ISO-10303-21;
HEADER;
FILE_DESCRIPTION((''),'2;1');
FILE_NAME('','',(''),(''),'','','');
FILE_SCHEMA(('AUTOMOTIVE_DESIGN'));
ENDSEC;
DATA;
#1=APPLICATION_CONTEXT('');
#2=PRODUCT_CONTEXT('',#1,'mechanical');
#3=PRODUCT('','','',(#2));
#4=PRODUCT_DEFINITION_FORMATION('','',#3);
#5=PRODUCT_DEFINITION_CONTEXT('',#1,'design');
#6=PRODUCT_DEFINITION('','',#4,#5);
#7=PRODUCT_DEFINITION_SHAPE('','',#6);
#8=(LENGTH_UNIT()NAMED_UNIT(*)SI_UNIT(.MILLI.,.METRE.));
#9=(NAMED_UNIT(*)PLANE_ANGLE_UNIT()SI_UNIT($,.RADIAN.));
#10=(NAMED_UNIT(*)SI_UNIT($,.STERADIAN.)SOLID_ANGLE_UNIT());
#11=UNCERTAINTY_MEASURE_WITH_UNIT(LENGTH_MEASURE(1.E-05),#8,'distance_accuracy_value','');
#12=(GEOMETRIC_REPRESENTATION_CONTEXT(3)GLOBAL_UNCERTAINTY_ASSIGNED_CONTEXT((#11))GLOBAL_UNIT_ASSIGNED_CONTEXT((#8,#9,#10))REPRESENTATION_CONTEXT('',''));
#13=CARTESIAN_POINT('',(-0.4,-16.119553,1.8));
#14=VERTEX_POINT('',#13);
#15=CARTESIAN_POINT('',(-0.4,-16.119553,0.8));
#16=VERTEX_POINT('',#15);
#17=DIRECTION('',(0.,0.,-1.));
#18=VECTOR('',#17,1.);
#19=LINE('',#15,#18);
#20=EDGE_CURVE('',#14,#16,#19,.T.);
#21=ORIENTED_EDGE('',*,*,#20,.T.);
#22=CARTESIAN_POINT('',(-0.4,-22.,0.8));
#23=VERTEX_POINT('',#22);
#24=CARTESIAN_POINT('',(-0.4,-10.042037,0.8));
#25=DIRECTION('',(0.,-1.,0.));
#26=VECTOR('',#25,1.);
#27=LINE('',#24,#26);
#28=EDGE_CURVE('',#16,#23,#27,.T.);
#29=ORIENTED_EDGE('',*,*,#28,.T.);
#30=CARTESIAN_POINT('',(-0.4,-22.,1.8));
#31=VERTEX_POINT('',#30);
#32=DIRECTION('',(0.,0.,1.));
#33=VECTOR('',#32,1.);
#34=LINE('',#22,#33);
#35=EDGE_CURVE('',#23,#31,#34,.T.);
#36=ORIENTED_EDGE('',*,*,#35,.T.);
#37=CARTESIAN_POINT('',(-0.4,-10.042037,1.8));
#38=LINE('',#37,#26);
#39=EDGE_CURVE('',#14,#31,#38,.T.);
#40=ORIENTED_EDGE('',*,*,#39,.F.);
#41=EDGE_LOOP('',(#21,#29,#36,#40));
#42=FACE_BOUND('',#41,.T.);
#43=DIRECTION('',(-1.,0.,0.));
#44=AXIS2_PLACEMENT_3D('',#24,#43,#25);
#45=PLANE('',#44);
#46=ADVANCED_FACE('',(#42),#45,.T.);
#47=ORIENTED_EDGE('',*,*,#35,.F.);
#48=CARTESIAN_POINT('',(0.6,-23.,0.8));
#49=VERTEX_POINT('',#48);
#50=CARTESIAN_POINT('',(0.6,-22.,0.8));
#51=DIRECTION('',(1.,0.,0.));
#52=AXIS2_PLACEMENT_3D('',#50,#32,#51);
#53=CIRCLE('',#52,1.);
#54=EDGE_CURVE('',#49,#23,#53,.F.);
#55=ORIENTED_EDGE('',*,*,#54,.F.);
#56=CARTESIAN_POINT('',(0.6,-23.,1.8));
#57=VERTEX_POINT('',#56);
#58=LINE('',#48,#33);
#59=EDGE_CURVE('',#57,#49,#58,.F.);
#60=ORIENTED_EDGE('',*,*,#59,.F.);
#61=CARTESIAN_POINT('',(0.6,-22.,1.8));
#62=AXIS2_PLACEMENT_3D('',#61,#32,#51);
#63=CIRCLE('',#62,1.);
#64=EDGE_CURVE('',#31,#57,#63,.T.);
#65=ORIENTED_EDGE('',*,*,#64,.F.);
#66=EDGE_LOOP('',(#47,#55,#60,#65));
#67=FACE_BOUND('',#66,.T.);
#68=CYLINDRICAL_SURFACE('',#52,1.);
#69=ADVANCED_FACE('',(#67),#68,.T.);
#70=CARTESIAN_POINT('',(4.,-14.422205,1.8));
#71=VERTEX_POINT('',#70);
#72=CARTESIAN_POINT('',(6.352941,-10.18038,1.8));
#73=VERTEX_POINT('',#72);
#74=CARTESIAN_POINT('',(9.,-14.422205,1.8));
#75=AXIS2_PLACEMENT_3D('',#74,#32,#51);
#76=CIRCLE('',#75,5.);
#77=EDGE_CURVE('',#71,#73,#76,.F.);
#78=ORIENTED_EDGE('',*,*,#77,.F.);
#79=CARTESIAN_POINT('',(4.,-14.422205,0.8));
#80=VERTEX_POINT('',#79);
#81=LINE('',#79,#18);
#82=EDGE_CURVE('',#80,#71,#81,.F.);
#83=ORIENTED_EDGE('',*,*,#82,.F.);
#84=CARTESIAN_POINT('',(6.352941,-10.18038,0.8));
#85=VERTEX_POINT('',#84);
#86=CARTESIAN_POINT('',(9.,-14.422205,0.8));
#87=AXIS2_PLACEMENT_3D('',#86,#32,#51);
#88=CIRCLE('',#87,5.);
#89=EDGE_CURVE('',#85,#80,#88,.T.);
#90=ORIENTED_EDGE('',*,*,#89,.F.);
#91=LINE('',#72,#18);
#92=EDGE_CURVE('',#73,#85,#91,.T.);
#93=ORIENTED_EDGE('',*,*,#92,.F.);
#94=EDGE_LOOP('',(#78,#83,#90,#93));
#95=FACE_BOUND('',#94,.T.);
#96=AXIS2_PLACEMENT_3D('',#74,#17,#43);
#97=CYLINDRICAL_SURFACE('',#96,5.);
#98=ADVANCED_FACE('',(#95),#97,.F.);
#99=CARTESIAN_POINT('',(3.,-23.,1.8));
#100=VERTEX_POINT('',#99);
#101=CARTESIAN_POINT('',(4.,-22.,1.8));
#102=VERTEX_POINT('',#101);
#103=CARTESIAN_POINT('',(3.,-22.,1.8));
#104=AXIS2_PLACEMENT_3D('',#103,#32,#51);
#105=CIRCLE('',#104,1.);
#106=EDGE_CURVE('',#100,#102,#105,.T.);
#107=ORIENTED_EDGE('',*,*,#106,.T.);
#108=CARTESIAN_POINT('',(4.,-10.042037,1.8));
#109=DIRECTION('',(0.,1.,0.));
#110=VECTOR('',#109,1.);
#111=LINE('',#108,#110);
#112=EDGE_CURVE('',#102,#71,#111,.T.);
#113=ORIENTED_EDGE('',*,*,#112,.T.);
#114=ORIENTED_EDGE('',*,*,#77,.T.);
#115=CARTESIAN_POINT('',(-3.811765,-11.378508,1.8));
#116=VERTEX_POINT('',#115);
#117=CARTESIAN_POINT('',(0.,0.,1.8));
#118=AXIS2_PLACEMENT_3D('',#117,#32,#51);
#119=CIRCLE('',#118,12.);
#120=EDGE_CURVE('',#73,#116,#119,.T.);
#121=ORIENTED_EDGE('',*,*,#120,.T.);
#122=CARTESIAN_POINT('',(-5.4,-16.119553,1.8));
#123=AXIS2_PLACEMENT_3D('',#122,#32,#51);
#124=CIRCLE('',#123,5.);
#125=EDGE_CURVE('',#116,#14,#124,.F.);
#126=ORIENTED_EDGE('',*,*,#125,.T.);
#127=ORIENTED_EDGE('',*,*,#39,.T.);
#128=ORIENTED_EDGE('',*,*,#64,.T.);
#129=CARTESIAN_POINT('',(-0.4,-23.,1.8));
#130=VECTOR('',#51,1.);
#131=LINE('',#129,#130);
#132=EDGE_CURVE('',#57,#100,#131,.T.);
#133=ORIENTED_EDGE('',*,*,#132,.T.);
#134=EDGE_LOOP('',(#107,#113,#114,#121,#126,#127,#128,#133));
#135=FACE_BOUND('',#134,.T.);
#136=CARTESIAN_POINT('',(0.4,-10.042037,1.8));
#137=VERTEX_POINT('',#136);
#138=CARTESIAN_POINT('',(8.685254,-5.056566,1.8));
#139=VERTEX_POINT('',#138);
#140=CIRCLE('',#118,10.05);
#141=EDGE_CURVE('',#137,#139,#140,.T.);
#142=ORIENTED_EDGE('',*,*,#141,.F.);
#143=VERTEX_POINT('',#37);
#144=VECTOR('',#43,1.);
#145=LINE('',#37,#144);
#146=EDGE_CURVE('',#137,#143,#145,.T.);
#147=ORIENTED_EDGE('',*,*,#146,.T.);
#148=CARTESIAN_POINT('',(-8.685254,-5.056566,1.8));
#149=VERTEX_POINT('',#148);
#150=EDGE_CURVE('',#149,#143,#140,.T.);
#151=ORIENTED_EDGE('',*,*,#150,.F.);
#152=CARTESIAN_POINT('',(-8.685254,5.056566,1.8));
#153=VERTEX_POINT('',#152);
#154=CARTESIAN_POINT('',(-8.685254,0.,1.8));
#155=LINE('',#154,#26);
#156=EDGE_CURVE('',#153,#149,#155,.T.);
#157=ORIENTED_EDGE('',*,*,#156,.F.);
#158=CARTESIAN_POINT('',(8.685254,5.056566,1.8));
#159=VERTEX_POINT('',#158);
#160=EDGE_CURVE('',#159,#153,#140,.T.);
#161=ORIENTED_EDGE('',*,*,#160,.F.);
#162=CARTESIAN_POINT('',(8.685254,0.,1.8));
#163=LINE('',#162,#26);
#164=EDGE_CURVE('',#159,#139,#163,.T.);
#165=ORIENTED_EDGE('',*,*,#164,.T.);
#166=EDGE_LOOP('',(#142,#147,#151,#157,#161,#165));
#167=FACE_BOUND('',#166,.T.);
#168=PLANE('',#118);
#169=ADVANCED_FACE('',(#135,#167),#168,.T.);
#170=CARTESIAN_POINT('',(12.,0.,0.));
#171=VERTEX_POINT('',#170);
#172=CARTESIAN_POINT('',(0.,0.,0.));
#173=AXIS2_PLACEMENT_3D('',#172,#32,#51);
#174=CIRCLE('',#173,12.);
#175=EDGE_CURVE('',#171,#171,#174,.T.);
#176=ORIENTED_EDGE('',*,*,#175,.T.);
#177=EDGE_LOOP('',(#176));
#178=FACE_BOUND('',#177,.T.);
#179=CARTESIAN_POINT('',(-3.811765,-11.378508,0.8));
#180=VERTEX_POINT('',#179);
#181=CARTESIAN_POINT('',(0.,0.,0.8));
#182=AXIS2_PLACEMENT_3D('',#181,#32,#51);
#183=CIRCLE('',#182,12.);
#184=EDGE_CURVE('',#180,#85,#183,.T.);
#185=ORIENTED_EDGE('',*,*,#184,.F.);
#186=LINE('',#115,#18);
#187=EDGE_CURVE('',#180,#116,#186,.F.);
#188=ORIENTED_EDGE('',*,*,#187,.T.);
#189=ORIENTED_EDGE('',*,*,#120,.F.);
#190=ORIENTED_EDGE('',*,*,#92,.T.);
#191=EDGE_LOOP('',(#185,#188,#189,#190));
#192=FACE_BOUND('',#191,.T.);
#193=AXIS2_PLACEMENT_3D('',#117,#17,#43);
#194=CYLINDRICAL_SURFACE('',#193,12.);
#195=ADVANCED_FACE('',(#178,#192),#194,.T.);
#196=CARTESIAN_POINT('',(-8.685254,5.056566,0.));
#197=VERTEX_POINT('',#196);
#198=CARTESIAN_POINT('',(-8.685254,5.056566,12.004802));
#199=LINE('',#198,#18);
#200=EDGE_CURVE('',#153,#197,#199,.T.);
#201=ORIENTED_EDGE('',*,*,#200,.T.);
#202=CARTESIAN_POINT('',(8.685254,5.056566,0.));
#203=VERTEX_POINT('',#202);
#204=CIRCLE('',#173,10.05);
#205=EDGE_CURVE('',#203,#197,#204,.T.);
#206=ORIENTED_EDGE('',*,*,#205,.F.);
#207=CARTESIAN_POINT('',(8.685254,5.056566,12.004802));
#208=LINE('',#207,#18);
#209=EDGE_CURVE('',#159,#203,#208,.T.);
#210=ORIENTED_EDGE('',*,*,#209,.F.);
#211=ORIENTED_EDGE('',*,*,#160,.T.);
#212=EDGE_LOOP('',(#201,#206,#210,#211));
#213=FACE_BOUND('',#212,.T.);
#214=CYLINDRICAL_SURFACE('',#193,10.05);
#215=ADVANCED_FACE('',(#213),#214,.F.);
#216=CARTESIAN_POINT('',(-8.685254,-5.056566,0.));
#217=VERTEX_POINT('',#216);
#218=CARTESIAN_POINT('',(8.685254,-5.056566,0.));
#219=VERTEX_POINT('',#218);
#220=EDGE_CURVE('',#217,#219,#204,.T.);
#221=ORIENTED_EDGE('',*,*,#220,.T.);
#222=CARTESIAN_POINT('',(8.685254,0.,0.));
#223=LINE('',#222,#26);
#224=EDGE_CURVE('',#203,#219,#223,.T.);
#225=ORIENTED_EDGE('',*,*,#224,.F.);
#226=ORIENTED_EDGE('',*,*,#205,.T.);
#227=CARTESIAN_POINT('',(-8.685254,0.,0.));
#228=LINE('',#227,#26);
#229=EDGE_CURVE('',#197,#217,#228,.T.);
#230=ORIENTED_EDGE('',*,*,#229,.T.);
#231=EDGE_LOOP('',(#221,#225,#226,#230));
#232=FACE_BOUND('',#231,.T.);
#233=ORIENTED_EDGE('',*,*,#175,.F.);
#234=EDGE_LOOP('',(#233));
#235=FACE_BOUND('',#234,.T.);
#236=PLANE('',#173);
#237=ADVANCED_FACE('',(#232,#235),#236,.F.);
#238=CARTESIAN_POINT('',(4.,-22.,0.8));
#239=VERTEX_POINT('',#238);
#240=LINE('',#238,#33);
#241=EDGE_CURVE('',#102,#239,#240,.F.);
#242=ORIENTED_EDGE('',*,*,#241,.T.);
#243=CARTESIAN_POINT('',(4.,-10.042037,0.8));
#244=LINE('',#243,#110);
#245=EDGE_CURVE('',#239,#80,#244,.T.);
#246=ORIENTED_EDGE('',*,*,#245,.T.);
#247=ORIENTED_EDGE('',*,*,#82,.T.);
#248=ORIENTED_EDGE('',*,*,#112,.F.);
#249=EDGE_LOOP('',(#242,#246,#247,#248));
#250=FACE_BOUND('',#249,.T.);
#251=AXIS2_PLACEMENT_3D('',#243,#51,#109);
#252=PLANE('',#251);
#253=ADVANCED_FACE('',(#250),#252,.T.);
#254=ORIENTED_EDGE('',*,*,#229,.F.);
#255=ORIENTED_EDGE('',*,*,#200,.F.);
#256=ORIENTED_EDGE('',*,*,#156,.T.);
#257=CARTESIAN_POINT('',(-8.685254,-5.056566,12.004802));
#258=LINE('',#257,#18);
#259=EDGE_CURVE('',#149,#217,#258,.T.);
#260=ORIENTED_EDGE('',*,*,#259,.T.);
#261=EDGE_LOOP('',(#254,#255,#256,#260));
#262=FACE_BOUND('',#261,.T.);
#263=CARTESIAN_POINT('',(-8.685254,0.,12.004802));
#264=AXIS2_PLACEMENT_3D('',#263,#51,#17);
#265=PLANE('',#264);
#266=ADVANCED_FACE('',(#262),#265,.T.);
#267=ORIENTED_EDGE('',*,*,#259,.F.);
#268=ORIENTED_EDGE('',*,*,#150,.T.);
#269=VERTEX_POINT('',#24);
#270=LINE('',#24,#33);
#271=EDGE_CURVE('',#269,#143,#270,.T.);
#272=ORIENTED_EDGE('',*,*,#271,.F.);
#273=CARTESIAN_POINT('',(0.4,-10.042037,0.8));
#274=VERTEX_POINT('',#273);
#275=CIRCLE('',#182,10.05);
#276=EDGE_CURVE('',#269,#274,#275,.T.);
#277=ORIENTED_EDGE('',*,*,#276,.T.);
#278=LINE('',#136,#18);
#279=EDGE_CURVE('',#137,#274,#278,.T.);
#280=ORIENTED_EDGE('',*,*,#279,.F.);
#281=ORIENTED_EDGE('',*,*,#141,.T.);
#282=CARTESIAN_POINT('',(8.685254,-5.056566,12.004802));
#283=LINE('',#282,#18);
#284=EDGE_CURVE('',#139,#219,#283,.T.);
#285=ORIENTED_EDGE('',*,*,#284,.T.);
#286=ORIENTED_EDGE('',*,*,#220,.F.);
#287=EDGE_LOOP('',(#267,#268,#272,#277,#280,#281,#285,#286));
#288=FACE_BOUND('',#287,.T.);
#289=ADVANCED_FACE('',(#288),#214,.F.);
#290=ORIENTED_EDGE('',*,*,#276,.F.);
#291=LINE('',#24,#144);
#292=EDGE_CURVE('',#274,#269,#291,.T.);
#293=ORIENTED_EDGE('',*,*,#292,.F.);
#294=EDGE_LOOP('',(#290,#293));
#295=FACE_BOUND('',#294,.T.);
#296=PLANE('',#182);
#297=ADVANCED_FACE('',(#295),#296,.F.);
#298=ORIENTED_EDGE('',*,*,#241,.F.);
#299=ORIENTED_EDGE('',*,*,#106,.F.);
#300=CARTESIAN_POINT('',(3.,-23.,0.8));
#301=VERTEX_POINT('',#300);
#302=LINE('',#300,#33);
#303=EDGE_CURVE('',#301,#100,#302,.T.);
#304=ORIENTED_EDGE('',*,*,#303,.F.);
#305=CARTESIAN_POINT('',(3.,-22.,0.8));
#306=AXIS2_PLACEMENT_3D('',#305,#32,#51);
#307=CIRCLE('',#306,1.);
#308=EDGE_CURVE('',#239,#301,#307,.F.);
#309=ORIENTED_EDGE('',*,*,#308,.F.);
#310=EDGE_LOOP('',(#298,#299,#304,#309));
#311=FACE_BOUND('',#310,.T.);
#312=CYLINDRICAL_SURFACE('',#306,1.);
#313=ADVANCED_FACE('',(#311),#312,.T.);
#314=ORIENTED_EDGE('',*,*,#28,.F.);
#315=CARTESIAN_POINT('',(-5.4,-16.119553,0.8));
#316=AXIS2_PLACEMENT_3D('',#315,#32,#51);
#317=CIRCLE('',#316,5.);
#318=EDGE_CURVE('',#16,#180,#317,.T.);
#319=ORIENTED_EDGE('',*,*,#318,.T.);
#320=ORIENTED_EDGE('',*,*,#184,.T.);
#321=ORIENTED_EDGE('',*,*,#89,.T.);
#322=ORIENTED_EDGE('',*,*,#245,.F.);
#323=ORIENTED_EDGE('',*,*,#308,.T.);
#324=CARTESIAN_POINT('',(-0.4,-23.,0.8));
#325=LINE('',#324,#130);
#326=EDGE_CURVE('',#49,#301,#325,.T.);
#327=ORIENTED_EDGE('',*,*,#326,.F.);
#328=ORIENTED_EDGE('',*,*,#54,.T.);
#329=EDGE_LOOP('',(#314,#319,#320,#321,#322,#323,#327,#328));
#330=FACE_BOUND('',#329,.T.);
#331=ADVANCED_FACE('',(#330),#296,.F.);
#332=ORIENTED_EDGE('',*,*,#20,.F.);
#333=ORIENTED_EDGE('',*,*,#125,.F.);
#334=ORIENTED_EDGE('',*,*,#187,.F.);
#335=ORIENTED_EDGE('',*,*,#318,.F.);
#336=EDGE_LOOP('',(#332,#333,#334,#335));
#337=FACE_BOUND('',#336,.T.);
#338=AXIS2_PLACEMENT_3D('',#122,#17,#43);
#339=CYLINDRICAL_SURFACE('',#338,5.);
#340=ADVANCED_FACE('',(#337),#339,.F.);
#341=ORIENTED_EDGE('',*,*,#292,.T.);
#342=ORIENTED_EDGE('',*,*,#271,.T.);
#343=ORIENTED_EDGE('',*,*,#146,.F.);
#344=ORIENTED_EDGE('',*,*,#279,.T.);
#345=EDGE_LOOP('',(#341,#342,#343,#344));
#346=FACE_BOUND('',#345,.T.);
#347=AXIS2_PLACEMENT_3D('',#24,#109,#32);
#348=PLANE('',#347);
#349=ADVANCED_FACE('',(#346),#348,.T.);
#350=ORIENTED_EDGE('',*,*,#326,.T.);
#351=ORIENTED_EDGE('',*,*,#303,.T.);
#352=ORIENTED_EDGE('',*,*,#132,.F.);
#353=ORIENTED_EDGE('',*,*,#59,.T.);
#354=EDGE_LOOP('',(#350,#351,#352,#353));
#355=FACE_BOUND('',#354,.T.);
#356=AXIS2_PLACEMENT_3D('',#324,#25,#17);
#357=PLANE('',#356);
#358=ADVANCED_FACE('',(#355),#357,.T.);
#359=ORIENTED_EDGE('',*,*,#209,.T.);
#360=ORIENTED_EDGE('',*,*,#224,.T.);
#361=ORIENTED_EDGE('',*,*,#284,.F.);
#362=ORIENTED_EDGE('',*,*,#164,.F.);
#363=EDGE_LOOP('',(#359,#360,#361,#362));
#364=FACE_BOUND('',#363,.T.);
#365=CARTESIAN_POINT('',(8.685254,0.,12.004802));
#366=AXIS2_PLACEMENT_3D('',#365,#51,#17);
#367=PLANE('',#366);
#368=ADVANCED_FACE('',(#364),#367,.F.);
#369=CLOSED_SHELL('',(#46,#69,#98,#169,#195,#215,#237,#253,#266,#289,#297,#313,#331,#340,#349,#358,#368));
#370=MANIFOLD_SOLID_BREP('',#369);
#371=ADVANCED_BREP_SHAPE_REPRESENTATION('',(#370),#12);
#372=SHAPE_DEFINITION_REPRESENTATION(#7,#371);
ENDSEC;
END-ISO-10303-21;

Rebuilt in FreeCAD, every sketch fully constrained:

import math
import FreeCAD as App
import Part
import Sketcher

V = App.Vector
Q = App.Units.Quantity


def edges_at(feature, points):
    """Names of the edges that pass closest to the given points."""
    edges = feature.Shape.Edges
    near = lambda p: min(range(len(edges)), key=lambda i: edges[i].distToShape(Part.Vertex(*p))[0])
    return sorted({f"Edge{near(p) + 1}" for p in points})

doc = App.newDocument("Part")
body = doc.addObject("PartDesign::Body", "Body")

sketch1 = body.newObject("Sketcher::SketchObject", "Sketch")
sketch1.AttachmentSupport = (doc.getObject("XY_Plane"), [""])
sketch1.MapMode = "FlatFace"
sketch1.addGeometry(Part.Circle(V(0, 0, 0), V(0, 0, 1), 12), False)
sketch1.addGeometry(Part.Circle(V(0, 0, 0), V(0, 0, 1), 10), False)
sketch1.addConstraint(Sketcher.Constraint("Coincident", 0, 3, -1, 1))
sketch1.addConstraint(Sketcher.Constraint("Coincident", 1, 3, -1, 1))
sketch1.addConstraint(Sketcher.Constraint("Diameter", 0, Q("24 mm")))
sketch1.addConstraint(Sketcher.Constraint("Diameter", 1, Q("20.1 mm")))
pad1 = body.newObject("PartDesign::Pad", "Pad")
pad1.Profile = sketch1
pad1.Length = 1.8

sketch2 = body.newObject("Sketcher::SketchObject", "Sketch001")
sketch2.AttachmentSupport = (doc.getObject("XY_Plane"), [""])
sketch2.MapMode = "FlatFace"
sketch2.AttachmentOffset = App.Placement(V(0, 0, 1.8), App.Rotation())
sketch2.addGeometry(Part.LineSegment(V(-0.4, -10, 0), V(-0.4, -23, 0)), False)
sketch2.addGeometry(Part.LineSegment(V(-0.4, -23, 0), V(4, -23, 0)), False)
sketch2.addGeometry(Part.LineSegment(V(4, -23, 0), V(4, -10, 0)), False)
sketch2.addGeometry(Part.LineSegment(V(4, -10, 0), V(-0.4, -10, 0)), False)
sketch2.addConstraint(Sketcher.Constraint("Coincident", 0, 2, 1, 1))
sketch2.addConstraint(Sketcher.Constraint("Coincident", 1, 2, 2, 1))
sketch2.addConstraint(Sketcher.Constraint("Coincident", 2, 2, 3, 1))
sketch2.addConstraint(Sketcher.Constraint("Coincident", 3, 2, 0, 1))
sketch2.addConstraint(Sketcher.Constraint("Vertical", 0))
sketch2.addConstraint(Sketcher.Constraint("Horizontal", 1))
sketch2.addConstraint(Sketcher.Constraint("Vertical", 2))
sketch2.addConstraint(Sketcher.Constraint("Horizontal", 3))
sketch2.addConstraint(Sketcher.Constraint("DistanceX", 1, 1, 1, 2, Q("4.4 mm")))
sketch2.addConstraint(Sketcher.Constraint("DistanceY", 0, 2, -1, 1, Q("23 mm")))
sketch2.addConstraint(Sketcher.Constraint("DistanceX", -1, 1, 1, 2, Q("4 mm")))
sketch2.addConstraint(Sketcher.Constraint("DistanceY", 0, 2, 0, 1, Q("12.957963 mm")))
pad2 = body.newObject("PartDesign::Pad", "Pad001")
pad2.Profile = sketch2
pad2.Length = 1
pad2.Reversed = True
doc.recompute()

fillet = body.newObject("PartDesign::Fillet", "Fillet")
fillet.Base = (pad2, edges_at(pad2, [(-0.4, -11.993, 1.3), (4, -11.314, 1.3)]))
fillet.Radius = 5
doc.recompute()

fillet2 = body.newObject("PartDesign::Fillet", "Fillet001")
fillet2.Base = (fillet, edges_at(fillet, [(-0.4, -23, 1.3), (4, -23, 1.3)]))
fillet2.Radius = 1

sketch3 = body.newObject("Sketcher::SketchObject", "Sketch002")
sketch3.AttachmentSupport = (doc.getObject("XY_Plane"), [""])
sketch3.MapMode = "FlatFace"
sketch3.addGeometry(Part.LineSegment(V(-9, -5, 0), V(-9, 5, 0)), False)
sketch3.addGeometry(Part.ArcOfCircle(Part.Circle(V(0, 0, 0), V(0, 0, 1), 10), math.radians(150), math.radians(210)), False)
sketch3.addGeometry(Part.ArcOfCircle(Part.Circle(V(0, 0, 0), V(0, 0, 1), 10), math.radians(0), math.radians(30)), False)
sketch3.addGeometry(Part.LineSegment(V(9, 5, 0), V(9, -5, 0)), False)
sketch3.addGeometry(Part.ArcOfCircle(Part.Circle(V(0, 0, 0), V(0, 0, 1), 10), math.radians(-30), math.radians(0)), False)
sketch3.addConstraint(Sketcher.Constraint("Coincident", 0, 1, 1, 2))
sketch3.addConstraint(Sketcher.Constraint("Coincident", 1, 1, 0, 2))
sketch3.addConstraint(Sketcher.Constraint("Coincident", 2, 2, 3, 1))
sketch3.addConstraint(Sketcher.Constraint("Coincident", 3, 2, 4, 1))
sketch3.addConstraint(Sketcher.Constraint("Tangent", 4, 2, 2, 1))
sketch3.addConstraint(Sketcher.Constraint("Vertical", 0))
sketch3.addConstraint(Sketcher.Constraint("Vertical", 3))
sketch3.addConstraint(Sketcher.Constraint("Coincident", 1, 3, -1, 1))
sketch3.addConstraint(Sketcher.Constraint("Coincident", 2, 3, -1, 1))
sketch3.addConstraint(Sketcher.Constraint("Equal", 1, 2))
sketch3.addConstraint(Sketcher.Constraint("Equal", 2, 4))
sketch3.addConstraint(Sketcher.Constraint("PointOnObject", 4, 2, -1))
sketch3.addConstraint(Sketcher.Constraint("Horizontal", 1, 1, 2, 2))
sketch3.addConstraint(Sketcher.Constraint("Radius", 1, Q("10.05 mm")))
sketch3.addConstraint(Sketcher.Constraint("DistanceY", 0, 1, 0, 2, Q("10.113133 mm")))
pad3 = body.newObject("PartDesign::Pad", "Pad002")
pad3.Profile = sketch3
pad3.Length = 1.8

doc.recompute()
